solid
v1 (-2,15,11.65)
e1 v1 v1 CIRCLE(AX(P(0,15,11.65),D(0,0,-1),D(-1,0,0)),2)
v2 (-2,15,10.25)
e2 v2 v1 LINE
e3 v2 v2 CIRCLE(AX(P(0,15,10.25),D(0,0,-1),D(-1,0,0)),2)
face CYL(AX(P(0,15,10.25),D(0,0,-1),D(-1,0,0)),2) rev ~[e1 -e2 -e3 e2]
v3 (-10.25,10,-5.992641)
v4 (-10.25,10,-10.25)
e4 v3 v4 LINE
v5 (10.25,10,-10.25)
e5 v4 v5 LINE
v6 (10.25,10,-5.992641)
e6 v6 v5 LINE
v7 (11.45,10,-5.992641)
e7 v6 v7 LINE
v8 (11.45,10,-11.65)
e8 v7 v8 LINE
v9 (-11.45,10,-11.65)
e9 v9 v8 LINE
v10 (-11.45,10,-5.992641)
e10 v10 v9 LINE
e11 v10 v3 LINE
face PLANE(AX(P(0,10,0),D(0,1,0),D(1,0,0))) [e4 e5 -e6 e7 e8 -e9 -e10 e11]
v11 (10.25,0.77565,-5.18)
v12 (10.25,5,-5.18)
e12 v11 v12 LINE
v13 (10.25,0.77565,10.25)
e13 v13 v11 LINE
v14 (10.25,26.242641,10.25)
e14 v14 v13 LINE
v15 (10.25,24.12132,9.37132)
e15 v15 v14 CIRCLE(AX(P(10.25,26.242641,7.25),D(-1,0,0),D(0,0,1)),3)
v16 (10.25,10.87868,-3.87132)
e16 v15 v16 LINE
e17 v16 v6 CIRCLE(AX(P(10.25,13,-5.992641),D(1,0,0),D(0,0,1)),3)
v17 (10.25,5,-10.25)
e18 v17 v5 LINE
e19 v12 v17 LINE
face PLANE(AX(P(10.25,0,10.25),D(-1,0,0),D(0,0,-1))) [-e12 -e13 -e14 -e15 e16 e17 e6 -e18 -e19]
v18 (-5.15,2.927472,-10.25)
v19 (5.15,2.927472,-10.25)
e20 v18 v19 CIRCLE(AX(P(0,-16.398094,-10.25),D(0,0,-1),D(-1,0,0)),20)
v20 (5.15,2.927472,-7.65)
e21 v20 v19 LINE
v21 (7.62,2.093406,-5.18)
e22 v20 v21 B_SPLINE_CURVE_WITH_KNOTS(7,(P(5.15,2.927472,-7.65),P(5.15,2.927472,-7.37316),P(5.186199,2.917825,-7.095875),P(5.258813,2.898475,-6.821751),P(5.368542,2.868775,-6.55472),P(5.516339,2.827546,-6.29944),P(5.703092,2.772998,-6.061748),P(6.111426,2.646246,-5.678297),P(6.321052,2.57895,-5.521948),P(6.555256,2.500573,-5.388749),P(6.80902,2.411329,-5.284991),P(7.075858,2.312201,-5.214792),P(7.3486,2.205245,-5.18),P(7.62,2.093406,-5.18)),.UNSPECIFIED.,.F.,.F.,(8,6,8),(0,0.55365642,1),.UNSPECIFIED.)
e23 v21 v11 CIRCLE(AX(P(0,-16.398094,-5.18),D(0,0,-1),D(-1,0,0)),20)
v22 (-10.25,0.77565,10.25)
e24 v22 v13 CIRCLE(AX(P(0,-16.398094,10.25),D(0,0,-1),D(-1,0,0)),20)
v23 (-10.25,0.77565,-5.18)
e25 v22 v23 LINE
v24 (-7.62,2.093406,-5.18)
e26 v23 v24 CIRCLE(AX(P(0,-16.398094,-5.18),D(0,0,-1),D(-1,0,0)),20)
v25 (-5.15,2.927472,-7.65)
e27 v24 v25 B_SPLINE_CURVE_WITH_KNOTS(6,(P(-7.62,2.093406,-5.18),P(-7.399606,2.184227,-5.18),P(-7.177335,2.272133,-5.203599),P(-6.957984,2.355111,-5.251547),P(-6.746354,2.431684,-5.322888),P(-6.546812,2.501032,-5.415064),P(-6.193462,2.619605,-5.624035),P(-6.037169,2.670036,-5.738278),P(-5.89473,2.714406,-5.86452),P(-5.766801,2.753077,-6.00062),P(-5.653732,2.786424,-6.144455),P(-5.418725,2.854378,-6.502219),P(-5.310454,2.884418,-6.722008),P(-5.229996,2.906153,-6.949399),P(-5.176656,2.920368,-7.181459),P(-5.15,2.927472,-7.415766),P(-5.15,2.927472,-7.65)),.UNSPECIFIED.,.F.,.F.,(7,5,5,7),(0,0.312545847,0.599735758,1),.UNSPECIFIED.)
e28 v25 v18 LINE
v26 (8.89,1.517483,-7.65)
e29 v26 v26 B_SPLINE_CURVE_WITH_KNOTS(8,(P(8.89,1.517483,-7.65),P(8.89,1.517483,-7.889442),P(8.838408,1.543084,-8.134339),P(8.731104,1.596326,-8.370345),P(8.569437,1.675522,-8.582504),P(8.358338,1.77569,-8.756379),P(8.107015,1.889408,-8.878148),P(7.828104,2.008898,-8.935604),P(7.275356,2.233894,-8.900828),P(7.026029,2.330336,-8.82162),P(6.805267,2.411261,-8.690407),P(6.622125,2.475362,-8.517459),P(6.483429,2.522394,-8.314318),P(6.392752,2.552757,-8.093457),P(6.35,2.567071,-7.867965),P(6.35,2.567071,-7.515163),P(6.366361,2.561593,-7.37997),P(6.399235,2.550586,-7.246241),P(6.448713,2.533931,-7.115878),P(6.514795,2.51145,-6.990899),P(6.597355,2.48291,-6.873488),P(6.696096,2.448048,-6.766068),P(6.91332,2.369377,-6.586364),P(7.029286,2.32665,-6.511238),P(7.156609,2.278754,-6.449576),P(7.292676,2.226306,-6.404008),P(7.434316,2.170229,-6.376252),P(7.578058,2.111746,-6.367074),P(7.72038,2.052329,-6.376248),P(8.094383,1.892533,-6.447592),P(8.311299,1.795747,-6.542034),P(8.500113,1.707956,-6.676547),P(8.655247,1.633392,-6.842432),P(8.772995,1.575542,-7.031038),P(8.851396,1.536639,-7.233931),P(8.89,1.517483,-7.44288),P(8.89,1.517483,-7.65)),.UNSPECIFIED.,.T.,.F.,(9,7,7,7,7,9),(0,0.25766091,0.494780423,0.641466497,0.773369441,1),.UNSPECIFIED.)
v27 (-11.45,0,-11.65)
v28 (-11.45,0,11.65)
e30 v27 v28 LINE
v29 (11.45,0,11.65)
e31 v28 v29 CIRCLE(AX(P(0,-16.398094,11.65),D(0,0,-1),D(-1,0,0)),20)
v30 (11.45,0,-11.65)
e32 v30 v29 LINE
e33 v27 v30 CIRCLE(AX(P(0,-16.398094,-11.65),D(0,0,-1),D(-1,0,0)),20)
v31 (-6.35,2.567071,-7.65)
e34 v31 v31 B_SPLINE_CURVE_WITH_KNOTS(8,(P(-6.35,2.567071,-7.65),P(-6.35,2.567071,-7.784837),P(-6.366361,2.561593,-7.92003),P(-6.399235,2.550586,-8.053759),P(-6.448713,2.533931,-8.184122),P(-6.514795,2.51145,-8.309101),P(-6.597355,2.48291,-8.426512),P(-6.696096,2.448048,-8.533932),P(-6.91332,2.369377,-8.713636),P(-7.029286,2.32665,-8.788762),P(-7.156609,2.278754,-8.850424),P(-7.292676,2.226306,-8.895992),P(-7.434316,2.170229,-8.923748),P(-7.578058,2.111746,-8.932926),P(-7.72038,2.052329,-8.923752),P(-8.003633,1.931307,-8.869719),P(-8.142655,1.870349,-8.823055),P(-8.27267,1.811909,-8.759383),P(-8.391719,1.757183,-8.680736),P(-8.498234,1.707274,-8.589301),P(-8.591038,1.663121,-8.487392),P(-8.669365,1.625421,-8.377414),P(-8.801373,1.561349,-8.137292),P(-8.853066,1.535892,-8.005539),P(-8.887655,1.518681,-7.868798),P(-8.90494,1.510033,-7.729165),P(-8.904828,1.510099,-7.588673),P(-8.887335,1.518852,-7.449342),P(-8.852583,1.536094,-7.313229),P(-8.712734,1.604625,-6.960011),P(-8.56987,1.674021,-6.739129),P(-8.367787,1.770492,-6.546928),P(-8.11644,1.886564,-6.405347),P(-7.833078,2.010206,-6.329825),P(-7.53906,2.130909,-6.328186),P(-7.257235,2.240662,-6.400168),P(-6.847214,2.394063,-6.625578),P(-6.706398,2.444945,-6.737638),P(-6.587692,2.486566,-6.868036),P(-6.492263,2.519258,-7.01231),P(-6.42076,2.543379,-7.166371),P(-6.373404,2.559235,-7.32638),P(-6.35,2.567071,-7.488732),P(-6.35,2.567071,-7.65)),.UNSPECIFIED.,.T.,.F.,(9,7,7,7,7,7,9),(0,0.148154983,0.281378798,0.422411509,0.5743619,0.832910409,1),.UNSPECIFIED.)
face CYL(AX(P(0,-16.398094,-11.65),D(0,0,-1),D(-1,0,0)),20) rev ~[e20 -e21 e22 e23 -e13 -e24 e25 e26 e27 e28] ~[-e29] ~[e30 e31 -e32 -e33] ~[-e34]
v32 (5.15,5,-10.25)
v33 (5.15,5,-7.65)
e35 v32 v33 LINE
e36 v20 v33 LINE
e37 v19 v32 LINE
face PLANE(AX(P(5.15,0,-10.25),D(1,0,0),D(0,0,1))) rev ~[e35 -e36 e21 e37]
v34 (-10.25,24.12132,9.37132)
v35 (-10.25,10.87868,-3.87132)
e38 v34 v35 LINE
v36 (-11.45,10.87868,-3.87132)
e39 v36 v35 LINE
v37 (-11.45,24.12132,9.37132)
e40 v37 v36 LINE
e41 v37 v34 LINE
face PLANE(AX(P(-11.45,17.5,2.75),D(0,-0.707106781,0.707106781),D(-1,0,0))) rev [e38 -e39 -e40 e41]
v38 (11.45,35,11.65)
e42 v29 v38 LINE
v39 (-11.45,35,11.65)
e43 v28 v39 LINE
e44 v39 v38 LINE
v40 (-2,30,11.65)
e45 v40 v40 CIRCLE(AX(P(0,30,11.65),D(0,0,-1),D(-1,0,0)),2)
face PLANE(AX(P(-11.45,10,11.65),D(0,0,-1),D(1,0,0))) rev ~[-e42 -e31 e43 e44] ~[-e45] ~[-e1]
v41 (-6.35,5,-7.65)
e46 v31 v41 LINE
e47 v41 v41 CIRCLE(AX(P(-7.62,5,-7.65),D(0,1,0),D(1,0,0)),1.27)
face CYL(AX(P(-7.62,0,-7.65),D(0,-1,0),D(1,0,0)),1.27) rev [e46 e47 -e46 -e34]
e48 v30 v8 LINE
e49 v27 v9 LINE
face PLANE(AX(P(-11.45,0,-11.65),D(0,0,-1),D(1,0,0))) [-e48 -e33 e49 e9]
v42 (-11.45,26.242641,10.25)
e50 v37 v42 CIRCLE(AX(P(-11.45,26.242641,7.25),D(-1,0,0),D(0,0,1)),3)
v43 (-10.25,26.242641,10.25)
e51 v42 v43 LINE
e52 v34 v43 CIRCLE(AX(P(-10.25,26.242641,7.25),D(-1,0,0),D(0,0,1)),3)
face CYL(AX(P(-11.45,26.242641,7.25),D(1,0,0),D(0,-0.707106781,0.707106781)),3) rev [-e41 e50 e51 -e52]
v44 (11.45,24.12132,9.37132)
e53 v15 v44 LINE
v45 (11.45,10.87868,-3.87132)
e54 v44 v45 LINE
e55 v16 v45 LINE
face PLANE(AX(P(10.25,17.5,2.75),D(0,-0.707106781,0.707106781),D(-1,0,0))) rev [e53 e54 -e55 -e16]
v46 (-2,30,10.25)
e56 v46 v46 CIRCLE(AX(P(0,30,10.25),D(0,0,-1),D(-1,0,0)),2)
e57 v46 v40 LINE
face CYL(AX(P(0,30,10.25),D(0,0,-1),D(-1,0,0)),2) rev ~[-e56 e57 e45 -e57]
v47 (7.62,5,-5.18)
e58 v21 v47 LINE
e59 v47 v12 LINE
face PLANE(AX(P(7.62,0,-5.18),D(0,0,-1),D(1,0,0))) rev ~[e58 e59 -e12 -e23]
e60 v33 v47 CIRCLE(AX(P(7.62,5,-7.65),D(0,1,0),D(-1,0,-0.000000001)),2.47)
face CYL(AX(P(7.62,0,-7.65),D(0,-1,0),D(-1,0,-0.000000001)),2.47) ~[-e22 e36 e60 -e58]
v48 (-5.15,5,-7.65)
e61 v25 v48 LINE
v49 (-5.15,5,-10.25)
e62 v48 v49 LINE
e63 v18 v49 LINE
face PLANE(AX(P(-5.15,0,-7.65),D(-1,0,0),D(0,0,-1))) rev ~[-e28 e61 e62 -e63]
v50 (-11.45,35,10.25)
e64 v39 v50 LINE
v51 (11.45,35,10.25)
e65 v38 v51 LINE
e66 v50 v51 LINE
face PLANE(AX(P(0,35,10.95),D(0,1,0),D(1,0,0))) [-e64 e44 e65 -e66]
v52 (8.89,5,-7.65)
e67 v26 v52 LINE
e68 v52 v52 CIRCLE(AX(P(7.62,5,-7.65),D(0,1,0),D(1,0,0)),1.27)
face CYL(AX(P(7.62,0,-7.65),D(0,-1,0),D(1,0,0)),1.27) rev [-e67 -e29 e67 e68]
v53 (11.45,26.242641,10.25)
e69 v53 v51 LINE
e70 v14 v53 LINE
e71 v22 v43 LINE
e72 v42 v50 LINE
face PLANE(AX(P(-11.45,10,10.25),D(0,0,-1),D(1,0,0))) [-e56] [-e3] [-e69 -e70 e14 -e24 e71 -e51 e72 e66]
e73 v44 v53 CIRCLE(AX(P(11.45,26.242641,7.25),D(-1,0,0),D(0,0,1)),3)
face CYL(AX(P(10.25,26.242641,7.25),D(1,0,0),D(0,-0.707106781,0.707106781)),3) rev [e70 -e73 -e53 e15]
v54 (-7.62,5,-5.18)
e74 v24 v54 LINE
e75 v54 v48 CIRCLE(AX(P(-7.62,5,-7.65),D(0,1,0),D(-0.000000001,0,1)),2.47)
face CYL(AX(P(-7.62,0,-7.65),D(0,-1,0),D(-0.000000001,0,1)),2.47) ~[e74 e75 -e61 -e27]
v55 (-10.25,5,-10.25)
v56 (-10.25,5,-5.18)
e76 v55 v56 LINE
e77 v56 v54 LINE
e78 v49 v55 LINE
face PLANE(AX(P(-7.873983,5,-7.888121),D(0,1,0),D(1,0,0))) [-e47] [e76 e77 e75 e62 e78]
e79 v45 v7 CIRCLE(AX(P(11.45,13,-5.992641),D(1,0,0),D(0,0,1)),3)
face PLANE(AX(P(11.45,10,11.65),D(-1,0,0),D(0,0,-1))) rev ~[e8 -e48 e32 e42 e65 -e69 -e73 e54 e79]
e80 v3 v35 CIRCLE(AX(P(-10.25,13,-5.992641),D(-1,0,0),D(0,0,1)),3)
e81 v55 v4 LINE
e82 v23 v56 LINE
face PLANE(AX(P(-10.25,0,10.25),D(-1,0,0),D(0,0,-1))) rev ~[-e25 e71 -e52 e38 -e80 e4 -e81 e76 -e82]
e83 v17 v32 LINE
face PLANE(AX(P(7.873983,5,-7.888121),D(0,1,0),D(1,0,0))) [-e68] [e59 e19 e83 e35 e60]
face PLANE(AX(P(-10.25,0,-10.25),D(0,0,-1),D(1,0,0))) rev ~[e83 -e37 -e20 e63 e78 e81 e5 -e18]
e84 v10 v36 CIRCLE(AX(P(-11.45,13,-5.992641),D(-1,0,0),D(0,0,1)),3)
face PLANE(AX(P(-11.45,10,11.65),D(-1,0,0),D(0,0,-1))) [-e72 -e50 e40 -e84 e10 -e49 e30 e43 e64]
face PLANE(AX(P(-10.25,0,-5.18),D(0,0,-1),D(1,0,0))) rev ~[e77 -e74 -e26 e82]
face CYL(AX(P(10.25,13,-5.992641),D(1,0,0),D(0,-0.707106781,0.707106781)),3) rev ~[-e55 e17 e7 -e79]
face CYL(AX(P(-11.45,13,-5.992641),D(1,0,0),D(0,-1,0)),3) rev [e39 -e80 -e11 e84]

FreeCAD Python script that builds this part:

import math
import FreeCAD as App
import Part
import Sketcher


def edges_at(feature, points):
    """Names of the edges that pass closest to the given points."""
    edges = feature.Shape.Edges
    near = lambda p: min(range(len(edges)), key=lambda i: edges[i].distToShape(Part.Vertex(*p))[0])
    return sorted({f"Edge{near(p) + 1}" for p in points})

doc = App.newDocument("Part")
params = doc.addObject("Spreadsheet::Sheet", "Params")
for row, (alias, value) in enumerate([
    ("sketch1_width", "22.9 mm"),
    ("sketch1_width2", "20.5 mm"),
    ("sketch1_height", "23.3 mm"),
    ("pad1_length", "10 mm"),
    ("sketch2_diameter", "2.54 mm"),
    ("sketch2_radius", "2.47 mm"),
    ("sketch2_width", "5.1 mm"),
    ("sketch2_height", "2.6 mm"),
    ("pad2_length", "5 mm"),
    ("sketch3_width", "22.9 mm"),
    ("sketch3_height", "1.4 mm"),
    ("pad3_length", "10 mm"),
    ("sketch4_width", "22.9 mm"),
    ("sketch4_height", "1.4 mm"),
    ("pad4_length", "25 mm"),
    ("sketch5_diameter", "40 mm"),
    ("pocket1_length", "23.3 mm"),
    ("sketch6_diameter", "4 mm"),
    ("chamfer_size", "15 mm"),
    ("fillet_radius", "3 mm"),
], start=1):
    params.set(f"A{row}", alias)
    params.set(f"B{row}", "=" + value)
    params.setAlias(f"B{row}", alias)

body = doc.addObject("PartDesign::Body", "Body")

# Sketch on XZ plane
sketch1 = body.newObject("Sketcher::SketchObject", "Sketch")
sketch1.AttachmentSupport = (doc.getObject("XZ_Plane"), [""])
sketch1.MapMode = "FlatFace"
sketch1.addGeometry([
    Part.LineSegment(App.Vector(-11, 12, 0), App.Vector(11, 12, 0)),  # 0
    Part.LineSegment(App.Vector(11, 12, 0), App.Vector(11, -12, 0)),  # 1
    Part.LineSegment(App.Vector(11, -12, 0), App.Vector(-11, -12, 0)),  # 2
    Part.LineSegment(App.Vector(-11, -12, 0), App.Vector(-11, 12, 0)),  # 3
    Part.LineSegment(App.Vector(10, 10, 0), App.Vector(-10, 10, 0)),  # 4
    Part.LineSegment(App.Vector(-10, 10, 0), App.Vector(-10, -10, 0)),  # 5
    Part.LineSegment(App.Vector(-10, -10, 0), App.Vector(10, -10, 0)),  # 6
    Part.LineSegment(App.Vector(10, -10, 0), App.Vector(10, 10, 0)),  # 7
], False)
sketch1.addConstraint([
    Sketcher.Constraint("Coincident", 0, 2, 1, 1),
    Sketcher.Constraint("Coincident", 1, 2, 2, 1),
    Sketcher.Constraint("Coincident", 2, 2, 3, 1),
    Sketcher.Constraint("Coincident", 3, 2, 0, 1),
    Sketcher.Constraint("Coincident", 4, 2, 5, 1),
    Sketcher.Constraint("Coincident", 5, 2, 6, 1),
    Sketcher.Constraint("Coincident", 6, 2, 7, 1),
    Sketcher.Constraint("Coincident", 7, 2, 4, 1),
    Sketcher.Constraint("Horizontal", 0),
    Sketcher.Constraint("Vertical", 1),
    Sketcher.Constraint("Horizontal", 2),
    Sketcher.Constraint("Vertical", 3),
    Sketcher.Constraint("Horizontal", 4),
    Sketcher.Constraint("Vertical", 5),
    Sketcher.Constraint("Horizontal", 6),
    Sketcher.Constraint("Vertical", 7),
    Sketcher.Constraint("Symmetric", 0, 2, 2, 2, -1, 1),
    Sketcher.Constraint("Symmetric", 4, 2, 6, 2, -1, 1),
    Sketcher.Constraint("Equal", 6, 5),
    Sketcher.Constraint("DistanceX", 0, 1, 0, 2, 22.9),
    Sketcher.Constraint("DistanceX", 4, 2, 4, 1, 20.5),
    Sketcher.Constraint("DistanceY", 1, 2, 1, 1, 23.3),
])
sketch1.setExpression("Constraints[19]", "Params.sketch1_width")
sketch1.setExpression("Constraints[20]", "Params.sketch1_width2")
sketch1.setExpression("Constraints[21]", "Params.sketch1_height")
pad1 = body.newObject("PartDesign::Pad", "Pad")
pad1.Profile = sketch1
pad1.setExpression("Length", "Params.pad1_length")
pad1.Reversed = True

# Sketch on XZ plane
sketch2 = body.newObject("Sketcher::SketchObject", "Sketch001")
sketch2.AttachmentSupport = (doc.getObject("XZ_Plane"), [""])
sketch2.MapMode = "FlatFace"
sketch2.addGeometry([
    Part.LineSegment(App.Vector(-5.2, -10.2, 0), App.Vector(-10.2, -10.2, 0)),  # 0
    Part.LineSegment(App.Vector(-10.2, -10.2, 0), App.Vector(-10.2, -5.2, 0)),  # 1
    Part.LineSegment(App.Vector(-10.2, -5.2, 0), App.Vector(-7.6, -5.2, 0)),  # 2
    Part.ArcOfCircle(Part.Circle(App.Vector(-7.6, -7.6, 0), App.Vector(0, 0, 1), 2.5), math.radians(0), math.radians(90)),  # 3
    Part.LineSegment(App.Vector(-5.2, -7.7, 0), App.Vector(-5.2, -10.2, 0)),  # 4
    Part.Circle(App.Vector(-7.6, -7.7, 0), App.Vector(0, 0, 1), 1.3),  # 5
    Part.LineSegment(App.Vector(10.2, -10.2, 0), App.Vector(5.2, -10.2, 0)),  # 6
    Part.LineSegment(App.Vector(5.2, -10.2, 0), App.Vector(5.2, -7.7, 0)),  # 7
    Part.ArcOfCircle(Part.Circle(App.Vector(7.6, -7.6, 0), App.Vector(0, 0, 1), 2.5), math.radians(90), math.radians(180)),  # 8
    Part.LineSegment(App.Vector(7.6, -5.2, 0), App.Vector(10.2, -5.2, 0)),  # 9
    Part.LineSegment(App.Vector(10.2, -5.2, 0), App.Vector(10.2, -10.2, 0)),  # 10
    Part.Circle(App.Vector(7.6, -7.7, 0), App.Vector(0, 0, 1), 1.3),  # 11
], False)
sketch2.addConstraint([
    Sketcher.Constraint("Coincident", 0, 2, 1, 1),
    Sketcher.Constraint("Coincident", 1, 2, 2, 1),
    Sketcher.Constraint("Tangent", 2, 2, 3, 2),
    Sketcher.Constraint("Tangent", 3, 1, 4, 1),
    Sketcher.Constraint("Coincident", 4, 2, 0, 1),
    Sketcher.Constraint("Coincident", 6, 2, 7, 1),
    Sketcher.Constraint("Tangent", 7, 2, 8, 2),
    Sketcher.Constraint("Tangent", 8, 1, 9, 1),
    Sketcher.Constraint("Coincident", 9, 2, 10, 1),
    Sketcher.Constraint("Coincident", 10, 2, 6, 1),
    Sketcher.Constraint("Horizontal", 0),
    Sketcher.Constraint("Vertical", 1),
    Sketcher.Constraint("Horizontal", 2),
    Sketcher.Constraint("Vertical", 4),
    Sketcher.Constraint("Horizontal", 6),
    Sketcher.Constraint("Vertical", 7),
    Sketcher.Constraint("Horizontal", 9),
    Sketcher.Constraint("Vertical", 10),
    Sketcher.Constraint("Coincident", 5, 3, 3, 3),
    Sketcher.Constraint("Coincident", 11, 3, 8, 3),
    Sketcher.Constraint("Equal", 3, 8),
    Sketcher.Constraint("Equal", 5, 11),
    Sketcher.Constraint("Symmetric", 3, 3, 8, 3, -2),
    Sketcher.Constraint("Symmetric", 0, 2, 10, 2, -2),
    Sketcher.Constraint("Diameter", 5, 2.54),
    Sketcher.Constraint("Radius", 3, 2.47),
    Sketcher.Constraint("DistanceX", 0, 2, 0, 1, 5.1),
    Sketcher.Constraint("DistanceY", 4, 2, 4, 1, 2.6),
    Sketcher.Constraint("DistanceX", 4, 2, 6, 2, 10.3),
    Sketcher.Constraint("DistanceY", 3, 3, -1, 1, 7.65),
])
sketch2.setExpression("Constraints[24]", "Params.sketch2_diameter")
sketch2.setExpression("Constraints[25]", "Params.sketch2_radius")
sketch2.setExpression("Constraints[26]", "Params.sketch2_width")
sketch2.setExpression("Constraints[27]", "Params.sketch2_height")
pad2 = body.newObject("PartDesign::Pad", "Pad001")
pad2.Profile = sketch2
pad2.setExpression("Length", "Params.pad2_length")
pad2.Reversed = True

# Sketch on XZ plane
sketch3 = body.newObject("Sketcher::SketchObject", "Sketch002")
sketch3.AttachmentSupport = (doc.getObject("XZ_Plane"), [""])
sketch3.MapMode = "FlatFace"
sketch3.addGeometry([
    Part.LineSegment(App.Vector(-11.4, 10.2, 0), App.Vector(-11.4, 11.7, 0)),
    Part.LineSegment(App.Vector(-11.4, 11.7, 0), App.Vector(11.4, 11.7, 0)),
    Part.LineSegment(App.Vector(11.4, 11.7, 0), App.Vector(11.4, 10.2, 0)),
    Part.LineSegment(App.Vector(11.4, 10.2, 0), App.Vector(-11.4, 10.2, 0)),
], False)
sketch3.addConstraint([
    Sketcher.Constraint("Coincident", 0, 2, 1, 1),
    Sketcher.Constraint("Coincident", 1, 2, 2, 1),
    Sketcher.Constraint("Coincident", 2, 2, 3, 1),
    Sketcher.Constraint("Coincident", 3, 2, 0, 1),
    Sketcher.Constraint("Vertical", 0),
    Sketcher.Constraint("Horizontal", 1),
    Sketcher.Constraint("Vertical", 2),
    Sketcher.Constraint("Horizontal", 3),
    Sketcher.Constraint("DistanceX", 1, 1, 1, 2, 22.9),
    Sketcher.Constraint("DistanceY", 0, 1, 0, 2, 1.4),
    Sketcher.Constraint("DistanceX", 0, 2, -1, 1, 11.45),
    Sketcher.Constraint("DistanceY", -1, 1, 0, 2, 11.65),
])
sketch3.setExpression("Constraints[8]", "Params.sketch3_width")
sketch3.setExpression("Constraints[9]", "Params.sketch3_height")
pad3 = body.newObject("PartDesign::Pad", "Pad002")
pad3.Profile = sketch3
pad3.setExpression("Length", "Params.pad3_length")
pad3.Reversed = True

# Sketch on XZ plane
sketch4 = body.newObject("Sketcher::SketchObject", "Sketch003")
sketch4.AttachmentSupport = (doc.getObject("XZ_Plane"), [""])
sketch4.MapMode = "FlatFace"
sketch4.AttachmentOffset = App.Placement(App.Vector(0, 0, -10), App.Rotation())
sketch4.addGeometry([
    Part.LineSegment(App.Vector(-11.4, 10.2, 0), App.Vector(-11.4, 11.7, 0)),
    Part.LineSegment(App.Vector(-11.4, 11.7, 0), App.Vector(11.4, 11.7, 0)),
    Part.LineSegment(App.Vector(11.4, 11.7, 0), App.Vector(11.4, 10.2, 0)),
    Part.LineSegment(App.Vector(11.4, 10.2, 0), App.Vector(-11.4, 10.2, 0)),
], False)
sketch4.addConstraint([
    Sketcher.Constraint("Coincident", 0, 2, 1, 1),
    Sketcher.Constraint("Coincident", 1, 2, 2, 1),
    Sketcher.Constraint("Coincident", 2, 2, 3, 1),
    Sketcher.Constraint("Coincident", 3, 2, 0, 1),
    Sketcher.Constraint("Vertical", 0),
    Sketcher.Constraint("Horizontal", 1),
    Sketcher.Constraint("Vertical", 2),
    Sketcher.Constraint("Horizontal", 3),
    Sketcher.Constraint("DistanceX", 1, 1, 1, 2, 22.9),
    Sketcher.Constraint("DistanceY", 0, 1, 0, 2, 1.4),
    Sketcher.Constraint("DistanceX", 0, 2, -1, 1, 11.45),
    Sketcher.Constraint("DistanceY", -1, 1, 0, 2, 11.65),
])
sketch4.setExpression("Constraints[8]", "Params.sketch4_width")
sketch4.setExpression("Constraints[9]", "Params.sketch4_height")
pad4 = body.newObject("PartDesign::Pad", "Pad003")
pad4.Profile = sketch4
pad4.setExpression("Length", "Params.pad4_length")
pad4.Reversed = True

# Sketch on XY plane
sketch5 = body.newObject("Sketcher::SketchObject", "Sketch004")
sketch5.AttachmentSupport = (doc.getObject("XY_Plane"), [""])
sketch5.MapMode = "FlatFace"
sketch5.AttachmentOffset = App.Placement(App.Vector(0, 0, -11.65), App.Rotation())
sketch5.addGeometry(Part.Circle(App.Vector(0, -16, 0), App.Vector(0, 0, 1), 20), False)
sketch5.addConstraint([
    Sketcher.Constraint("PointOnObject", 0, 3, -2),
    Sketcher.Constraint("Diameter", 0, 40.0),
    Sketcher.Constraint("DistanceY", 0, 3, -1, 1, 16.398094),
])
sketch5.setExpression("Constraints[1]", "Params.sketch5_diameter")
pocket1 = body.newObject("PartDesign::Pocket", "Pocket")
pocket1.Profile = sketch5
pocket1.setExpression("Length", "Params.pocket1_length")
pocket1.Reversed = True

# Sketch on XY plane
sketch6 = body.newObject("Sketcher::SketchObject", "Sketch005")
sketch6.AttachmentSupport = (doc.getObject("XY_Plane"), [""])
sketch6.MapMode = "FlatFace"
sketch6.AttachmentOffset = App.Placement(App.Vector(0, 0, 10.25), App.Rotation())
sketch6.addGeometry([
    Part.Circle(App.Vector(0, 15, 0), App.Vector(0, 0, 1), 2),
    Part.Circle(App.Vector(0, 30, 0), App.Vector(0, 0, 1), 2),
], False)
sketch6.addConstraint([
    Sketcher.Constraint("Equal", 0, 1),
    Sketcher.Constraint("PointOnObject", 0, 3, -2),
    Sketcher.Constraint("PointOnObject", 1, 3, -2),
    Sketcher.Constraint("Diameter", 0, 4.0),
    Sketcher.Constraint("DistanceY", -1, 1, 0, 3, 15.0),
    Sketcher.Constraint("DistanceY", -1, 1, 1, 3, 30.0),
])
sketch6.setExpression("Constraints[3]", "Params.sketch6_diameter")
pocket2 = body.newObject("PartDesign::Pocket", "Pocket001")
pocket2.Profile = sketch6
pocket2.Type = "ThroughAll"
pocket2.Reversed = True
doc.recompute()

chamfer = body.newObject("PartDesign::Chamfer", "Chamfer")
chamfer.Base = (pocket2, edges_at(pocket2, [(-10.85, 10, 10.25), (10.85, 10, 10.25)]))
chamfer.setExpression("Size", "Params.chamfer_size")
doc.recompute()

fillet = body.newObject("PartDesign::Fillet", "Fillet")
fillet.Base = (chamfer, edges_at(chamfer, [
    (-10.85, 25, 10.25),
    (10.85, 25, 10.25),
    (-10.85, 10, -4.75),
    (10.85, 10, -4.75),
]))
fillet.setExpression("Radius", "Params.fillet_radius")

doc.recompute()
